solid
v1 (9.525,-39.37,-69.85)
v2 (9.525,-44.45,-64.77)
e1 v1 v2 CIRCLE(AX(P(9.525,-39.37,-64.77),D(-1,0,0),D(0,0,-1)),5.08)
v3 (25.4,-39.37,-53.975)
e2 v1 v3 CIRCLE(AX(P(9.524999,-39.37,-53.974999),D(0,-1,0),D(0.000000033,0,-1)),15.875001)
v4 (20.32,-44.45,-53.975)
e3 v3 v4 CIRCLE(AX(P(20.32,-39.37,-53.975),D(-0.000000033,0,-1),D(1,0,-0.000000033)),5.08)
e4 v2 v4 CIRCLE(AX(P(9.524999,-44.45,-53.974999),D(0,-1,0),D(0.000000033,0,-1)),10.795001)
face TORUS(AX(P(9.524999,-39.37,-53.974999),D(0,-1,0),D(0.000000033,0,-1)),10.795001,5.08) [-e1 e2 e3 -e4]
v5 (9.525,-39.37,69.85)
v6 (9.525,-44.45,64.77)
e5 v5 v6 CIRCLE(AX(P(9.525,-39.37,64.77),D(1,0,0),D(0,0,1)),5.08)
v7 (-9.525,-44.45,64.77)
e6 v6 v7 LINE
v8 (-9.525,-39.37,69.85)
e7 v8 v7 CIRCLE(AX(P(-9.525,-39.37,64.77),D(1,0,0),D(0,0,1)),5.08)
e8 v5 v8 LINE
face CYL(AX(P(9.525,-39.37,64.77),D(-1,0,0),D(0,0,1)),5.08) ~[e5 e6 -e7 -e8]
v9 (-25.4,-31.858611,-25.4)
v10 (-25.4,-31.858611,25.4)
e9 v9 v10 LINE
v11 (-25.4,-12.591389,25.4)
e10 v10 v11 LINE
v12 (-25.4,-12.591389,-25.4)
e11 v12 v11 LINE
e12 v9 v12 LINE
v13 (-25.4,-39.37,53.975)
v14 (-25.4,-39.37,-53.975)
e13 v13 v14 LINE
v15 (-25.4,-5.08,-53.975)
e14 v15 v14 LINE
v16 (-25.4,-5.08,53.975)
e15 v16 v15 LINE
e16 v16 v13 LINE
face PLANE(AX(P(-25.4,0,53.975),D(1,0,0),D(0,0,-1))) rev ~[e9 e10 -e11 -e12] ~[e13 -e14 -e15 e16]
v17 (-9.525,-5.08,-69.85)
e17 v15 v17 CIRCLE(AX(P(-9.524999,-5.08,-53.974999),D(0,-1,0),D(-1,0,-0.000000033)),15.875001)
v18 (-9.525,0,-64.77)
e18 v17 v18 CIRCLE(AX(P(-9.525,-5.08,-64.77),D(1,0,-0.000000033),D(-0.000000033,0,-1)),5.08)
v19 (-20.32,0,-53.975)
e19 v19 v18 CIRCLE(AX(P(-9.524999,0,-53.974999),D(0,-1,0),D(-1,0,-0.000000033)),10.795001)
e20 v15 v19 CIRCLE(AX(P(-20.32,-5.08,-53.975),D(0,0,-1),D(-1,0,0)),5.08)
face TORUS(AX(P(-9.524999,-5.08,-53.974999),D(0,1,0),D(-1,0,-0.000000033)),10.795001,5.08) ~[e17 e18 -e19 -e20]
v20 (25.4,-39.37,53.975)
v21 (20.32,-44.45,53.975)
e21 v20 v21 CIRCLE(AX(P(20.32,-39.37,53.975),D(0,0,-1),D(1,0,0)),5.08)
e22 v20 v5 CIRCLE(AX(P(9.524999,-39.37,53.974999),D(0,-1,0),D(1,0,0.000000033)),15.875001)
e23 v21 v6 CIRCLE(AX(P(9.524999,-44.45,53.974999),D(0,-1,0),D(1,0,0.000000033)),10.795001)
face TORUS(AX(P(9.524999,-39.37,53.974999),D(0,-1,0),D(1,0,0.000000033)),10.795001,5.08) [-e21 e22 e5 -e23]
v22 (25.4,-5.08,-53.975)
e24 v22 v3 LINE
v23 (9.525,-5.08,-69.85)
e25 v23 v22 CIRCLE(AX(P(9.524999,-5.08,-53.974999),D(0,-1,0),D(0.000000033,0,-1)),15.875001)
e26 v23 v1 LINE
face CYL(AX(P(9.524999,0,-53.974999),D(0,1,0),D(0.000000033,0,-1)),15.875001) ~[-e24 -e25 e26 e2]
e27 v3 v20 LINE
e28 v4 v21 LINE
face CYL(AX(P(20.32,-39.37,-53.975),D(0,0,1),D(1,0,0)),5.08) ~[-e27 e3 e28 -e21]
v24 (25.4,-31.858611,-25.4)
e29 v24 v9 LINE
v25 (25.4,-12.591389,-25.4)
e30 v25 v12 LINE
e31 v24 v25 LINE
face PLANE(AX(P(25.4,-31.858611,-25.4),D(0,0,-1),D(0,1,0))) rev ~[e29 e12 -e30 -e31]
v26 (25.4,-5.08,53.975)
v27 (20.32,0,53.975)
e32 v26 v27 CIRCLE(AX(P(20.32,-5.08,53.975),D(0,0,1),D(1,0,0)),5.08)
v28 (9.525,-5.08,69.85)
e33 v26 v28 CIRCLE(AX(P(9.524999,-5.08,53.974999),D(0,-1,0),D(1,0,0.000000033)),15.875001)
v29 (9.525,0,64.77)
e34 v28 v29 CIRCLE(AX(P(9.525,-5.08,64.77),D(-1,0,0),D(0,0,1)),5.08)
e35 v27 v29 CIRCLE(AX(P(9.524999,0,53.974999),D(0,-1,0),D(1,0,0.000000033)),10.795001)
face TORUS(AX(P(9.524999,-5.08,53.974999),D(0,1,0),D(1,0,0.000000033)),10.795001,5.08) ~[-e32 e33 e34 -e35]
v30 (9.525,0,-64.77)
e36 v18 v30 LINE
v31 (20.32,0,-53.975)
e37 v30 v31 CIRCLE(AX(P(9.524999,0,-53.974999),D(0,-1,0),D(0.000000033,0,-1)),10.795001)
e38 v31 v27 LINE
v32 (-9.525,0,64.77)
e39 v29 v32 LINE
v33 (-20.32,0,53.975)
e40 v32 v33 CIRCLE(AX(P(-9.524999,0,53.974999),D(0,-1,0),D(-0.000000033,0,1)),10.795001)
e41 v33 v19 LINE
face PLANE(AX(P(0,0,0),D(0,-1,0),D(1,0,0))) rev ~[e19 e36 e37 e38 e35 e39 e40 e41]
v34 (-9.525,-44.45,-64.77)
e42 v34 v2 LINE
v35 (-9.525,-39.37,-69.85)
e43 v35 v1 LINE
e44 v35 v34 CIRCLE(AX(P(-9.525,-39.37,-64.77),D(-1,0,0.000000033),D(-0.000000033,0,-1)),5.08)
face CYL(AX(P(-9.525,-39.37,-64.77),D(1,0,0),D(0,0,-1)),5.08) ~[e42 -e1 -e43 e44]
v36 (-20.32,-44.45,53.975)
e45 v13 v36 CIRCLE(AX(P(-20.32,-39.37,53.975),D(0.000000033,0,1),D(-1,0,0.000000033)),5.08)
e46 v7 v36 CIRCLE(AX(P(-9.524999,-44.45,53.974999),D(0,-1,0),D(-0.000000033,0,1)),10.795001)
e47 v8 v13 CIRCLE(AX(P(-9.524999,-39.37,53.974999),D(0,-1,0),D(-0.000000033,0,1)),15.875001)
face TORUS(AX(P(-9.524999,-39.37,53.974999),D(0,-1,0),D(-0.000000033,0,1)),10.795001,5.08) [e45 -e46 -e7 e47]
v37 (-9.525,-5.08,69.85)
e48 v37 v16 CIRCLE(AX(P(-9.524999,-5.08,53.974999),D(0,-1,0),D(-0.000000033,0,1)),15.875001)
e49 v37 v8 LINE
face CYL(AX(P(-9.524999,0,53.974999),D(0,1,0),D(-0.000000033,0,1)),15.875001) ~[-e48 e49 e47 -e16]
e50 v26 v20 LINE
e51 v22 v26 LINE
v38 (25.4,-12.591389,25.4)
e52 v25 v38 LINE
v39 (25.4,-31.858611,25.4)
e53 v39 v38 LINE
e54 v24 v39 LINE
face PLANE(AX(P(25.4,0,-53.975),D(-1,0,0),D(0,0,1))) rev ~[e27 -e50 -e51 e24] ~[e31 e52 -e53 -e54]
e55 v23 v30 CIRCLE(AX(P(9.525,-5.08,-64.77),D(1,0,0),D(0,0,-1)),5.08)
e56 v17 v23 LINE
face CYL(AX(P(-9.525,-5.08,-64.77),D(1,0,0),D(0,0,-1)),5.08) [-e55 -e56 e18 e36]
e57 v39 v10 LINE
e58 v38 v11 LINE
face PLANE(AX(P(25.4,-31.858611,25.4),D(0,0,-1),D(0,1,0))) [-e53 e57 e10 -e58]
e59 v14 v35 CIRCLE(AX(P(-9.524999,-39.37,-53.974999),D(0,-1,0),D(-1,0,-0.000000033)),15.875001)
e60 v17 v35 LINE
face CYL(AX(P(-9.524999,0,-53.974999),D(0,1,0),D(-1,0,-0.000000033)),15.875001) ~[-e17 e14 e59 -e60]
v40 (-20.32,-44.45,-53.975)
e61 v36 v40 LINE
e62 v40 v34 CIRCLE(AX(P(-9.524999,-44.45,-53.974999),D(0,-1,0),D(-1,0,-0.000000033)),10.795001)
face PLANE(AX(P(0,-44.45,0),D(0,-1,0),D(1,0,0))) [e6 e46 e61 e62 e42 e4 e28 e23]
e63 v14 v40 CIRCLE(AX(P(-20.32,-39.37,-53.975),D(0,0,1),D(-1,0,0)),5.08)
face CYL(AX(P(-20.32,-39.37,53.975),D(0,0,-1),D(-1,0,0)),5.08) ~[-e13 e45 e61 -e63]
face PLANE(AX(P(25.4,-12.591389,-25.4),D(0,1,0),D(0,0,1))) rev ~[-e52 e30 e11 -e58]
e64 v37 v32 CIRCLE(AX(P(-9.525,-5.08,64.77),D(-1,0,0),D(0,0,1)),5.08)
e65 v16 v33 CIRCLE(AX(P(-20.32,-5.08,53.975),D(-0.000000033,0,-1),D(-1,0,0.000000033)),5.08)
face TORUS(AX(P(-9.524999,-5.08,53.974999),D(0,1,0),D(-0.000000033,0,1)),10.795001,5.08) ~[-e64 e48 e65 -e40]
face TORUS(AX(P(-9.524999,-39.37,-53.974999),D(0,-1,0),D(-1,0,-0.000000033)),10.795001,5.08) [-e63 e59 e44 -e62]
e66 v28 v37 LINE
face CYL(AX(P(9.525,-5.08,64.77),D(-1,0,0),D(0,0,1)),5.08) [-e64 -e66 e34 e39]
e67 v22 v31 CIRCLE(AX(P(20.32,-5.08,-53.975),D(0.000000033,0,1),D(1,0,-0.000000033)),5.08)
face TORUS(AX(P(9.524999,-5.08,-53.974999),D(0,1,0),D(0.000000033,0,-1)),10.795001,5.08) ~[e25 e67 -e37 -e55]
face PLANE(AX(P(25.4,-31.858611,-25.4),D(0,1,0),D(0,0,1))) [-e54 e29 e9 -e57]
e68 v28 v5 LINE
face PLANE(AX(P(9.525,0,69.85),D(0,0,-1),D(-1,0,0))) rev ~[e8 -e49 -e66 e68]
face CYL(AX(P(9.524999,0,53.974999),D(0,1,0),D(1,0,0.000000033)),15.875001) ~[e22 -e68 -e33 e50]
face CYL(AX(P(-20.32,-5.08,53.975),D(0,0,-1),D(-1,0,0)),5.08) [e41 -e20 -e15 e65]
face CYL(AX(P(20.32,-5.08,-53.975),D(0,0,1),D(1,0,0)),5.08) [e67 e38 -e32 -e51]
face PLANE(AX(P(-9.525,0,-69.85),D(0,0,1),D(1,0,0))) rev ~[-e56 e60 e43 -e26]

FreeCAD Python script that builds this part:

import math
import FreeCAD as App
import Part
import Sketcher
Q = App.Units.Quantity


def edges_at(feature, points):
    """Names of the edges that pass closest to the given points."""
    edges = feature.Shape.Edges
    near = lambda p: min(range(len(edges)), key=lambda i: edges[i].distToShape(Part.Vertex(*p))[0])
    return sorted({f"Edge{near(p) + 1}" for p in points})

doc = App.newDocument("Part")
body = doc.addObject("PartDesign::Body", "Body")

# Sketch on XZ plane
sketch1 = doc.addObject("Sketcher::SketchObject", "Sketch")
body.addObject(sketch1)
sketch1.AttachmentSupport = (doc.XZ_Plane, [""])
sketch1.MapMode = "FlatFace"
sketch1.addGeometry(Part.ArcOfCircle(Part.Circle(App.Vector(-10, -54, 0), App.Vector(0, 0, 1), 16), math.radians(-180), math.radians(-90)), False)
sketch1.addGeometry(Part.LineSegment(App.Vector(-10, -70, 0), App.Vector(10, -70, 0)), False)
sketch1.addGeometry(Part.ArcOfCircle(Part.Circle(App.Vector(10, -54, 0), App.Vector(0, 0, 1), 16), math.radians(-90), math.radians(0)), False)
sketch1.addGeometry(Part.LineSegment(App.Vector(25, -54, 0), App.Vector(25, 54, 0)), False)
sketch1.addGeometry(Part.ArcOfCircle(Part.Circle(App.Vector(10, 54, 0), App.Vector(0, 0, 1), 16), math.radians(0), math.radians(90)), False)
sketch1.addGeometry(Part.LineSegment(App.Vector(10, 70, 0), App.Vector(-10, 70, 0)), False)
sketch1.addGeometry(Part.ArcOfCircle(Part.Circle(App.Vector(-10, 54, 0), App.Vector(0, 0, 1), 16), math.radians(90), math.radians(180)), False)
sketch1.addGeometry(Part.LineSegment(App.Vector(-25, 54, 0), App.Vector(-25, -54, 0)), False)
sketch1.addConstraint(Sketcher.Constraint("Tangent", 0, 2, 1, 1))
sketch1.addConstraint(Sketcher.Constraint("Tangent", 1, 2, 2, 1))
sketch1.addConstraint(Sketcher.Constraint("Tangent", 2, 2, 3, 1))
sketch1.addConstraint(Sketcher.Constraint("Tangent", 3, 2, 4, 1))
sketch1.addConstraint(Sketcher.Constraint("Tangent", 4, 2, 5, 1))
sketch1.addConstraint(Sketcher.Constraint("Tangent", 5, 2, 6, 1))
sketch1.addConstraint(Sketcher.Constraint("Tangent", 6, 2, 7, 1))
sketch1.addConstraint(Sketcher.Constraint("Tangent", 7, 2, 0, 1))
sketch1.addConstraint(Sketcher.Constraint("Horizontal", 1))
sketch1.addConstraint(Sketcher.Constraint("Vertical", 3))
sketch1.addConstraint(Sketcher.Constraint("Horizontal", 5))
sketch1.addConstraint(Sketcher.Constraint("Vertical", 7))
sketch1.addConstraint(Sketcher.Constraint("Equal", 0, 2))
sketch1.addConstraint(Sketcher.Constraint("Equal", 2, 4))
sketch1.addConstraint(Sketcher.Constraint("Equal", 4, 6))
sketch1.addConstraint(Sketcher.Constraint("Symmetric", 0, 3, 4, 3, -1, 1))
sketch1.addConstraint(Sketcher.Constraint("DistanceX", -1, 1, 2, 2, Q("1 in")))
sketch1.addConstraint(Sketcher.Constraint("Radius", 0, Q("0.625 in")))
sketch1.addConstraint(Sketcher.Constraint("DistanceY", 3, 1, 3, 2, Q("4.25 in")))
pad1 = doc.addObject("PartDesign::Pad", "Pad")
body.addObject(pad1)
pad1.Profile = sketch1
pad1.Length = Q("1.75 in")
doc.recompute()

fillet = doc.addObject("PartDesign::Fillet", "Fillet")
body.addObject(fillet)
fillet.Base = (pad1, edges_at(pad1, [
    (0, -44.45, 69.85),
    (-20.75, -44.45, -65.2),
    (0, -44.45, -69.85),
    (20.75, -44.45, -65.2),
    (25.4, -44.45, 0),
    (20.75, -44.45, 65.2),
    (-20.75, -44.45, 65.2),
    (-25.4, -44.45, 0),
    (0, 0, 69.85),
    (25.4, 0, 0),
]))
fillet.Radius = Q("0.2 in")

# Sketch on YZ plane
sketch2 = doc.addObject("Sketcher::SketchObject", "Sketch001")
body.addObject(sketch2)
sketch2.AttachmentSupport = (doc.YZ_Plane, [""])
sketch2.MapMode = "FlatFace"
sketch2.AttachmentOffset = App.Placement(App.Vector(0, 0, 1 * 25.4), App.Rotation())
sketch2.addGeometry(Part.LineSegment(App.Vector(-32, 25, 0), App.Vector(-32, -25, 0)), False)
sketch2.addGeometry(Part.LineSegment(App.Vector(-32, -25, 0), App.Vector(-13, -25, 0)), False)
sketch2.addGeometry(Part.LineSegment(App.Vector(-13, -25, 0), App.Vector(-13, 25, 0)), False)
sketch2.addGeometry(Part.LineSegment(App.Vector(-13, 25, 0), App.Vector(-32, 25, 0)), False)
sketch2.addConstraint(Sketcher.Constraint("Coincident", 0, 2, 1, 1))
sketch2.addConstraint(Sketcher.Constraint("Coincident", 1, 2, 2, 1))
sketch2.addConstraint(Sketcher.Constraint("Coincident", 2, 2, 3, 1))
sketch2.addConstraint(Sketcher.Constraint("Coincident", 3, 2, 0, 1))
sketch2.addConstraint(Sketcher.Constraint("Vertical", 0))
sketch2.addConstraint(Sketcher.Constraint("Horizontal", 1))
sketch2.addConstraint(Sketcher.Constraint("Vertical", 2))
sketch2.addConstraint(Sketcher.Constraint("Horizontal", 3))
sketch2.addConstraint(Sketcher.Constraint("DistanceY", 0, 2, 0, 1, Q("2 in")))
sketch2.addConstraint(Sketcher.Constraint("DistanceY", 0, 2, -1, 1, Q("1 in")))
sketch2.addConstraint(Sketcher.Constraint("DistanceX", 1, 1, 1, 2, 19.267222))
sketch2.addConstraint(Sketcher.Constraint("DistanceX", 0, 2, -1, 1, 31.858611))
pocket1 = doc.addObject("PartDesign::Pocket", "Pocket")
body.addObject(pocket1)
pocket1.Profile = sketch2
pocket1.Type = "ThroughAll"

doc.recompute()
